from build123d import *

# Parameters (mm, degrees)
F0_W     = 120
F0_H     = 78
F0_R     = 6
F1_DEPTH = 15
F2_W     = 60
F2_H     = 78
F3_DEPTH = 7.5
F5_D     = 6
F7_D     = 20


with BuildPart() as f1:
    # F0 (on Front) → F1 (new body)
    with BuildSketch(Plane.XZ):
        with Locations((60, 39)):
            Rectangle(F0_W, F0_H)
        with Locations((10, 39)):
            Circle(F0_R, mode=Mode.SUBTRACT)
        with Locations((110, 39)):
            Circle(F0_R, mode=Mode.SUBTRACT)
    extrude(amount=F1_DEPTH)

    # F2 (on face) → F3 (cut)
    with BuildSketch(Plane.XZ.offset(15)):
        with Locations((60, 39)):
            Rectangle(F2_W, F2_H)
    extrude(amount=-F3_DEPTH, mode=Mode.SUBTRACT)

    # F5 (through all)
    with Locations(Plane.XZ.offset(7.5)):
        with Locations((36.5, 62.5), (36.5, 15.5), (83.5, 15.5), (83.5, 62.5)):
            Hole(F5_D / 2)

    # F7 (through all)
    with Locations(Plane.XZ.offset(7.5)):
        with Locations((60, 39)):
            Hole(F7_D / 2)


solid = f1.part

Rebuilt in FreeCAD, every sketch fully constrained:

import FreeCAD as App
import Part
import Sketcher

V = App.Vector

doc = App.newDocument("Part")
body = doc.addObject("PartDesign::Body", "Body")

# Sketch on XZ plane
sketch1 = body.newObject("Sketcher::SketchObject", "Sketch")
sketch1.AttachmentSupport = (doc.getObject("XZ_Plane"), [""])
sketch1.MapMode = "FlatFace"
sketch1.addGeometry(Part.LineSegment(V(0, 78, 0), V(0, 0, 0)), False)
sketch1.addGeometry(Part.LineSegment(V(0, 0, 0), V(120, 0, 0)), False)
sketch1.addGeometry(Part.LineSegment(V(120, 0, 0), V(120, 78, 0)), False)
sketch1.addGeometry(Part.LineSegment(V(120, 78, 0), V(0, 78, 0)), False)
sketch1.addGeometry(Part.Circle(V(10, 39, 0), V(0, 0, 1), 6), False)
sketch1.addGeometry(Part.Circle(V(110, 39, 0), V(0, 0, 1), 6), False)
sketch1.addConstraint(Sketcher.Constraint("Coincident", 0, 2, 1, 1))
sketch1.addConstraint(Sketcher.Constraint("Coincident", 1, 2, 2, 1))
sketch1.addConstraint(Sketcher.Constraint("Coincident", 2, 2, 3, 1))
sketch1.addConstraint(Sketcher.Constraint("Coincident", 3, 2, 0, 1))
sketch1.addConstraint(Sketcher.Constraint("Vertical", 0))
sketch1.addConstraint(Sketcher.Constraint("Horizontal", 1))
sketch1.addConstraint(Sketcher.Constraint("Vertical", 2))
sketch1.addConstraint(Sketcher.Constraint("Horizontal", 3))
sketch1.addConstraint(Sketcher.Constraint("Coincident", 0, 2, -1, 1))
sketch1.addConstraint(Sketcher.Constraint("Equal", 4, 5))
sketch1.addConstraint(Sketcher.Constraint("Horizontal", 4, 3, 5, 3))
sketch1.addConstraint(Sketcher.Constraint("Diameter", 4, 12.0))
sketch1.addConstraint(Sketcher.Constraint("DistanceX", 1, 1, 1, 2, 120.0))
sketch1.addConstraint(Sketcher.Constraint("DistanceY", 0, 2, 0, 1, 78.0))
sketch1.addConstraint(Sketcher.Constraint("DistanceX", -1, 1, 4, 3, 10.0))
sketch1.addConstraint(Sketcher.Constraint("DistanceY", -1, 1, 4, 3, 39.0))
sketch1.addConstraint(Sketcher.Constraint("DistanceX", -1, 1, 5, 3, 110.0))
pad1 = body.newObject("PartDesign::Pad", "Pad")
pad1.Profile = sketch1
pad1.Length = 15

# Sketch on XZ plane
sketch2 = body.newObject("Sketcher::SketchObject", "Sketch001")
sketch2.AttachmentSupport = (doc.getObject("XZ_Plane"), [""])
sketch2.MapMode = "FlatFace"
sketch2.AttachmentOffset = App.Placement(V(0, 0, 15), App.Rotation())
sketch2.addGeometry(Part.LineSegment(V(30, 78, 0), V(30, 0, 0)), False)
sketch2.addGeometry(Part.LineSegment(V(30, 0, 0), V(90, 0, 0)), False)
sketch2.addGeometry(Part.LineSegment(V(90, 0, 0), V(90, 78, 0)), False)
sketch2.addGeometry(Part.LineSegment(V(90, 78, 0), V(30, 78, 0)), False)
sketch2.addConstraint(Sketcher.Constraint("Coincident", 0, 2, 1, 1))
sketch2.addConstraint(Sketcher.Constraint("Coincident", 1, 2, 2, 1))
sketch2.addConstraint(Sketcher.Constraint("Coincident", 2, 2, 3, 1))
sketch2.addConstraint(Sketcher.Constraint("Coincident", 3, 2, 0, 1))
sketch2.addConstraint(Sketcher.Constraint("Vertical", 0))
sketch2.addConstraint(Sketcher.Constraint("Horizontal", 1))
sketch2.addConstraint(Sketcher.Constraint("Vertical", 2))
sketch2.addConstraint(Sketcher.Constraint("Horizontal", 3))
sketch2.addConstraint(Sketcher.Constraint("PointOnObject", 0, 2, -1))
sketch2.addConstraint(Sketcher.Constraint("DistanceX", 1, 1, 1, 2, 60.0))
sketch2.addConstraint(Sketcher.Constraint("DistanceY", 0, 2, 0, 1, 78.0))
sketch2.addConstraint(Sketcher.Constraint("DistanceX", -1, 1, 0, 2, 30.0))
pocket1 = body.newObject("PartDesign::Pocket", "Pocket")
pocket1.Profile = sketch2
pocket1.Length = 7.5

# Sketch on XZ plane
sketch3 = body.newObject("Sketcher::SketchObject", "Sketch002")
sketch3.AttachmentSupport = (doc.getObject("XZ_Plane"), [""])
sketch3.MapMode = "FlatFace"
sketch3.AttachmentOffset = App.Placement(V(0, 0, 7.5), App.Rotation())
sketch3.addGeometry(Part.Circle(V(36.5, 62.5, 0), V(0, 0, 1), 3), False)
sketch3.addGeometry(Part.Circle(V(36.5, 15.5, 0), V(0, 0, 1), 3), False)
sketch3.addGeometry(Part.Circle(V(83.5, 15.5, 0), V(0, 0, 1), 3), False)
sketch3.addGeometry(Part.Circle(V(83.5, 62.5, 0), V(0, 0, 1), 3), False)
sketch3.addConstraint(Sketcher.Constraint("Equal", 0, 1))
sketch3.addConstraint(Sketcher.Constraint("Equal", 1, 2))
sketch3.addConstraint(Sketcher.Constraint("Equal", 2, 3))
sketch3.addConstraint(Sketcher.Constraint("Horizontal", 1, 3, 2, 3))
sketch3.addConstraint(Sketcher.Constraint("Horizontal", 0, 3, 3, 3))
sketch3.addConstraint(Sketcher.Constraint("Vertical", 0, 3, 1, 3))
sketch3.addConstraint(Sketcher.Constraint("Vertical", 2, 3, 3, 3))
sketch3.addConstraint(Sketcher.Constraint("Diameter", 0, 6.0))
sketch3.addConstraint(Sketcher.Constraint("DistanceY", 1, 3, 0, 3, 47.0))
sketch3.addConstraint(Sketcher.Constraint("DistanceX", 1, 3, 2, 3, 47.0))
sketch3.addConstraint(Sketcher.Constraint("DistanceX", -1, 1, 0, 3, 36.5))
sketch3.addConstraint(Sketcher.Constraint("DistanceY", -1, 1, 0, 3, 62.5))
doc.recompute()
hole = body.newObject("PartDesign::Hole", "Hole")
hole.Profile = sketch3
hole.ThreadType = "None"
hole.Diameter = 6
hole.DepthType = "ThroughAll"

# Sketch on XZ plane
sketch4 = body.newObject("Sketcher::SketchObject", "Sketch003")
sketch4.AttachmentSupport = (doc.getObject("XZ_Plane"), [""])
sketch4.MapMode = "FlatFace"
sketch4.AttachmentOffset = App.Placement(V(0, 0, 7.5), App.Rotation())
sketch4.addGeometry(Part.Circle(V(60, 39, 0), V(0, 0, 1), 10), False)
sketch4.addConstraint(Sketcher.Constraint("Diameter", 0, 20.0))
sketch4.addConstraint(Sketcher.Constraint("DistanceX", -1, 1, 0, 3, 60.0))
sketch4.addConstraint(Sketcher.Constraint("DistanceY", -1, 1, 0, 3, 39.0))
doc.recompute()
hole2 = body.newObject("PartDesign::Hole", "Hole001")
hole2.Profile = sketch4
hole2.ThreadType = "None"
hole2.Diameter = 20
hole2.DepthType = "ThroughAll"

doc.recompute()
